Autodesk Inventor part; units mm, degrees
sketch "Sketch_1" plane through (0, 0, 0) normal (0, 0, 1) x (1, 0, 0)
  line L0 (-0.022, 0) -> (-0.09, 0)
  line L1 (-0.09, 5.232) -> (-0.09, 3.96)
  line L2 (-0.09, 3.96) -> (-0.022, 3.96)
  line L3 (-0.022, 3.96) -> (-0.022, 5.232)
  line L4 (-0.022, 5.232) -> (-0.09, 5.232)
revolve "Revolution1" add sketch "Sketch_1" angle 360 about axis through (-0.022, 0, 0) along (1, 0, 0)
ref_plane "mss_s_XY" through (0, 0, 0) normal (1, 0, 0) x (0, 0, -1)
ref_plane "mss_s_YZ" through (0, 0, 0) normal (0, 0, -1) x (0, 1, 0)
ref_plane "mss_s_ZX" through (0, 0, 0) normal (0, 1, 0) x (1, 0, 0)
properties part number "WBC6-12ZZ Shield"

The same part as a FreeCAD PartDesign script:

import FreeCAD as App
import Part
import Sketcher
Q = App.Units.Quantity


def add_polygon(sketch, points):
    """Adds a closed chain of lines whose ends are joined by coincident constraints."""
    first, n = sketch.GeometryCount, len(points)
    for a, b in zip(points, points[1:] + points[:1]):
        sketch.addGeometry(Part.LineSegment(App.Vector(*a, 0), App.Vector(*b, 0)), False)
    for i in range(n):
        sketch.addConstraint(Sketcher.Constraint("Coincident", first + i, 2, first + (i + 1) % n, 1))

doc = App.newDocument("Part")
params = doc.addObject("Spreadsheet::Sheet", "Params")
for row, (alias, value) in enumerate([
    ("revolution_angle", "360 deg"),
], start=1):
    params.set(f"A{row}", alias)
    params.set(f"B{row}", "=" + value)
    params.setAlias(f"B{row}", alias)

body = doc.addObject("PartDesign::Body", "Body")

# Sketch on XY plane
sketch1 = doc.addObject("Sketcher::SketchObject", "Sketch")
body.addObject(sketch1)
sketch1.AttachmentSupport = (doc.XY_Plane, [""])
sketch1.MapMode = "FlatFace"
add_polygon(sketch1, [(-0.02, 5.23), (-0.09, 5.23), (-0.09, 3.96), (-0.02, 3.96)])  # lines 0-3
sketch1.addConstraint([
    Sketcher.Constraint("Horizontal", 0),
    Sketcher.Constraint("Vertical", 1),
    Sketcher.Constraint("Horizontal", 2),
    Sketcher.Constraint("Vertical", 3),
    Sketcher.Constraint("DistanceX", 0, 2, 0, 1, Q("0.068 mm")),
    Sketcher.Constraint("DistanceY", 1, 2, 1, 1, Q("1.272 mm")),
    Sketcher.Constraint("DistanceX", 0, 2, -1, 1, Q("0.09 mm")),
    Sketcher.Constraint("DistanceY", -1, 1, 1, 2, Q("3.96 mm")),
])
revolution = doc.addObject("PartDesign::Revolution", "Revolution")
body.addObject(revolution)
revolution.Profile = sketch1
revolution.ReferenceAxis = (sketch1, ["H_Axis"])
revolution.setExpression("Angle", "Params.revolution_angle")

doc.recompute()
